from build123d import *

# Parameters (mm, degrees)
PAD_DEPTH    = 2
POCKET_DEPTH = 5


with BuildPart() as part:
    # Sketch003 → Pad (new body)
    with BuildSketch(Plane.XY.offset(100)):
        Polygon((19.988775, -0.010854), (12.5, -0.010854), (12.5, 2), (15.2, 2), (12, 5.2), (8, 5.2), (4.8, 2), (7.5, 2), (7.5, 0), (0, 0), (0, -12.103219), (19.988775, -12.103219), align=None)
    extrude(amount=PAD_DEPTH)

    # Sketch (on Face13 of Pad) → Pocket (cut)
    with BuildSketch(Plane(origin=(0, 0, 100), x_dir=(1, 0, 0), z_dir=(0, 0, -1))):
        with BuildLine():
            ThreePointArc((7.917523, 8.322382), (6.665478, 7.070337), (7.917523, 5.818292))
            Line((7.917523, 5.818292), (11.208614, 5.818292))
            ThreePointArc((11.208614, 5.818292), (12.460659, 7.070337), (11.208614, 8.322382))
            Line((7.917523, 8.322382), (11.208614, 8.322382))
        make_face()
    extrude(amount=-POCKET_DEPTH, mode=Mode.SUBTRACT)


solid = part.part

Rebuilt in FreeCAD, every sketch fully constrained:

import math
import FreeCAD as App
import Part
import Sketcher
from FreeCAD import Vector


def add_polygon(sketch, points):
    """Adds a closed chain of lines whose ends are joined by coincident constraints."""
    first, n = sketch.GeometryCount, len(points)
    for a, b in zip(points, points[1:] + points[:1]):
        sketch.addGeometry(Part.LineSegment(App.Vector(*a, 0), App.Vector(*b, 0)), False)
    for i in range(n):
        sketch.addConstraint(Sketcher.Constraint("Coincident", first + i, 2, first + (i + 1) % n, 1))

doc = App.newDocument("Part")
params = doc.addObject("Spreadsheet::Sheet", "Params")
for row, (alias, value) in enumerate([
    ("sketch1_width", "4 mm"),
    ("sketch1_height", "2 mm"),
    ("sketch1_width2", "2.7 mm"),
    ("sketch1_width3", "7.5 mm"),
    ("pad1_length", "2 mm"),
    ("pocket1_length", "5 mm"),
], start=1):
    params.set(f"A{row}", alias)
    params.set(f"B{row}", "=" + value)
    params.setAlias(f"B{row}", alias)

body = doc.addObject("PartDesign::Body", "Body")

# Sketch on XY plane
sketch1 = body.newObject("Sketcher::SketchObject", "Sketch")
sketch1.AttachmentSupport = (doc.getObject("XY_Plane"), [""])
sketch1.MapMode = "FlatFace"
sketch1.AttachmentOffset = App.Placement(Vector(0, 0, 100), App.Rotation())
add_polygon(sketch1, [(20, 0), (12.5, 0), (12.5, 2), (15.2, 2), (12, 5.2), (8, 5.2), (4.8, 2), (7.5, 2), (7.5, 0), (0, 0), (0, -12.1), (20, -12.1)])  # lines 0-11
sketch1.addConstraint([
    Sketcher.Constraint("Horizontal", 0),
    Sketcher.Constraint("Vertical", 1),
    Sketcher.Constraint("Horizontal", 2),
    Sketcher.Constraint("Horizontal", 4),
    Sketcher.Constraint("Horizontal", 6),
    Sketcher.Constraint("Vertical", 7),
    Sketcher.Constraint("Horizontal", 8),
    Sketcher.Constraint("Vertical", 9),
    Sketcher.Constraint("Horizontal", 10),
    Sketcher.Constraint("Vertical", 11),
    Sketcher.Constraint("Coincident", 8, 2, -1, 1),
    Sketcher.Constraint("Perpendicular", 3, 5),
    Sketcher.Constraint("Horizontal", 2, 2, 5, 2),
    Sketcher.Constraint("Equal", 2, 6),
    Sketcher.Constraint("Equal", 3, 5),
    Sketcher.Constraint("DistanceX", 4, 2, 4, 1, 4.0),
    Sketcher.Constraint("DistanceY", 7, 2, 7, 1, 2.0),
    Sketcher.Constraint("DistanceX", 2, 1, 2, 2, 2.7),
    Sketcher.Constraint("DistanceX", 8, 2, 8, 1, 7.5),
    Sketcher.Constraint("DistanceX", -1, 1, 3, 2, 12.0),
    Sketcher.Constraint("DistanceY", 9, 2, 9, 1, 12.103219),
    Sketcher.Constraint("DistanceX", 0, 2, 0, 1, 7.488775),
    Sketcher.Constraint("DistanceY", 1, 1, 1, 2, 2.010854),
])
sketch1.setExpression("Constraints[27]", "Params.sketch1_width")
sketch1.setExpression("Constraints[28]", "Params.sketch1_height")
sketch1.setExpression("Constraints[29]", "Params.sketch1_width2")
sketch1.setExpression("Constraints[30]", "Params.sketch1_width3")
pad1 = body.newObject("PartDesign::Pad", "Pad")
pad1.Profile = sketch1
pad1.setExpression("Length", "Params.pad1_length")

# Sketch on XY plane
sketch2 = body.newObject("Sketcher::SketchObject", "Sketch001")
sketch2.AttachmentSupport = (doc.getObject("XY_Plane"), [""])
sketch2.MapMode = "FlatFace"
sketch2.AttachmentOffset = App.Placement(Vector(0, 0, 100), App.Rotation())
sketch2.addGeometry([
    Part.ArcOfCircle(Part.Circle(Vector(7.9, -7.1, 0), Vector(0, 0, 1), 1.3), math.radians(90), math.radians(270)),
    Part.LineSegment(Vector(7.9, -5.8, 0), Vector(11.2, -5.8, 0)),
    Part.ArcOfCircle(Part.Circle(Vector(11.2, -7.1, 0), Vector(0, 0, 1), 1.3), math.radians(-90), math.radians(90)),
    Part.LineSegment(Vector(11.2, -8.3, 0), Vector(7.9, -8.3, 0)),
], False)
sketch2.addConstraint([
    Sketcher.Constraint("Tangent", 0, 1, 1, 1),
    Sketcher.Constraint("Tangent", 1, 2, 2, 2),
    Sketcher.Constraint("Tangent", 2, 1, 3, 1),
    Sketcher.Constraint("Tangent", 3, 2, 0, 2),
    Sketcher.Constraint("Horizontal", 1),
    Sketcher.Constraint("Horizontal", 3),
    Sketcher.Constraint("Radius", 0, 1.252045),
    Sketcher.Constraint("DistanceX", 1, 1, 1, 2, 3.291091),
    Sketcher.Constraint("DistanceY", 1, 2, -1, 1, 5.818292),
    Sketcher.Constraint("DistanceX", -1, 1, 0, 3, 7.917523),
])
pocket1 = body.newObject("PartDesign::Pocket", "Pocket")
pocket1.Profile = sketch2
pocket1.setExpression("Length", "Params.pocket1_length")
pocket1.Reversed = True

doc.recompute()
